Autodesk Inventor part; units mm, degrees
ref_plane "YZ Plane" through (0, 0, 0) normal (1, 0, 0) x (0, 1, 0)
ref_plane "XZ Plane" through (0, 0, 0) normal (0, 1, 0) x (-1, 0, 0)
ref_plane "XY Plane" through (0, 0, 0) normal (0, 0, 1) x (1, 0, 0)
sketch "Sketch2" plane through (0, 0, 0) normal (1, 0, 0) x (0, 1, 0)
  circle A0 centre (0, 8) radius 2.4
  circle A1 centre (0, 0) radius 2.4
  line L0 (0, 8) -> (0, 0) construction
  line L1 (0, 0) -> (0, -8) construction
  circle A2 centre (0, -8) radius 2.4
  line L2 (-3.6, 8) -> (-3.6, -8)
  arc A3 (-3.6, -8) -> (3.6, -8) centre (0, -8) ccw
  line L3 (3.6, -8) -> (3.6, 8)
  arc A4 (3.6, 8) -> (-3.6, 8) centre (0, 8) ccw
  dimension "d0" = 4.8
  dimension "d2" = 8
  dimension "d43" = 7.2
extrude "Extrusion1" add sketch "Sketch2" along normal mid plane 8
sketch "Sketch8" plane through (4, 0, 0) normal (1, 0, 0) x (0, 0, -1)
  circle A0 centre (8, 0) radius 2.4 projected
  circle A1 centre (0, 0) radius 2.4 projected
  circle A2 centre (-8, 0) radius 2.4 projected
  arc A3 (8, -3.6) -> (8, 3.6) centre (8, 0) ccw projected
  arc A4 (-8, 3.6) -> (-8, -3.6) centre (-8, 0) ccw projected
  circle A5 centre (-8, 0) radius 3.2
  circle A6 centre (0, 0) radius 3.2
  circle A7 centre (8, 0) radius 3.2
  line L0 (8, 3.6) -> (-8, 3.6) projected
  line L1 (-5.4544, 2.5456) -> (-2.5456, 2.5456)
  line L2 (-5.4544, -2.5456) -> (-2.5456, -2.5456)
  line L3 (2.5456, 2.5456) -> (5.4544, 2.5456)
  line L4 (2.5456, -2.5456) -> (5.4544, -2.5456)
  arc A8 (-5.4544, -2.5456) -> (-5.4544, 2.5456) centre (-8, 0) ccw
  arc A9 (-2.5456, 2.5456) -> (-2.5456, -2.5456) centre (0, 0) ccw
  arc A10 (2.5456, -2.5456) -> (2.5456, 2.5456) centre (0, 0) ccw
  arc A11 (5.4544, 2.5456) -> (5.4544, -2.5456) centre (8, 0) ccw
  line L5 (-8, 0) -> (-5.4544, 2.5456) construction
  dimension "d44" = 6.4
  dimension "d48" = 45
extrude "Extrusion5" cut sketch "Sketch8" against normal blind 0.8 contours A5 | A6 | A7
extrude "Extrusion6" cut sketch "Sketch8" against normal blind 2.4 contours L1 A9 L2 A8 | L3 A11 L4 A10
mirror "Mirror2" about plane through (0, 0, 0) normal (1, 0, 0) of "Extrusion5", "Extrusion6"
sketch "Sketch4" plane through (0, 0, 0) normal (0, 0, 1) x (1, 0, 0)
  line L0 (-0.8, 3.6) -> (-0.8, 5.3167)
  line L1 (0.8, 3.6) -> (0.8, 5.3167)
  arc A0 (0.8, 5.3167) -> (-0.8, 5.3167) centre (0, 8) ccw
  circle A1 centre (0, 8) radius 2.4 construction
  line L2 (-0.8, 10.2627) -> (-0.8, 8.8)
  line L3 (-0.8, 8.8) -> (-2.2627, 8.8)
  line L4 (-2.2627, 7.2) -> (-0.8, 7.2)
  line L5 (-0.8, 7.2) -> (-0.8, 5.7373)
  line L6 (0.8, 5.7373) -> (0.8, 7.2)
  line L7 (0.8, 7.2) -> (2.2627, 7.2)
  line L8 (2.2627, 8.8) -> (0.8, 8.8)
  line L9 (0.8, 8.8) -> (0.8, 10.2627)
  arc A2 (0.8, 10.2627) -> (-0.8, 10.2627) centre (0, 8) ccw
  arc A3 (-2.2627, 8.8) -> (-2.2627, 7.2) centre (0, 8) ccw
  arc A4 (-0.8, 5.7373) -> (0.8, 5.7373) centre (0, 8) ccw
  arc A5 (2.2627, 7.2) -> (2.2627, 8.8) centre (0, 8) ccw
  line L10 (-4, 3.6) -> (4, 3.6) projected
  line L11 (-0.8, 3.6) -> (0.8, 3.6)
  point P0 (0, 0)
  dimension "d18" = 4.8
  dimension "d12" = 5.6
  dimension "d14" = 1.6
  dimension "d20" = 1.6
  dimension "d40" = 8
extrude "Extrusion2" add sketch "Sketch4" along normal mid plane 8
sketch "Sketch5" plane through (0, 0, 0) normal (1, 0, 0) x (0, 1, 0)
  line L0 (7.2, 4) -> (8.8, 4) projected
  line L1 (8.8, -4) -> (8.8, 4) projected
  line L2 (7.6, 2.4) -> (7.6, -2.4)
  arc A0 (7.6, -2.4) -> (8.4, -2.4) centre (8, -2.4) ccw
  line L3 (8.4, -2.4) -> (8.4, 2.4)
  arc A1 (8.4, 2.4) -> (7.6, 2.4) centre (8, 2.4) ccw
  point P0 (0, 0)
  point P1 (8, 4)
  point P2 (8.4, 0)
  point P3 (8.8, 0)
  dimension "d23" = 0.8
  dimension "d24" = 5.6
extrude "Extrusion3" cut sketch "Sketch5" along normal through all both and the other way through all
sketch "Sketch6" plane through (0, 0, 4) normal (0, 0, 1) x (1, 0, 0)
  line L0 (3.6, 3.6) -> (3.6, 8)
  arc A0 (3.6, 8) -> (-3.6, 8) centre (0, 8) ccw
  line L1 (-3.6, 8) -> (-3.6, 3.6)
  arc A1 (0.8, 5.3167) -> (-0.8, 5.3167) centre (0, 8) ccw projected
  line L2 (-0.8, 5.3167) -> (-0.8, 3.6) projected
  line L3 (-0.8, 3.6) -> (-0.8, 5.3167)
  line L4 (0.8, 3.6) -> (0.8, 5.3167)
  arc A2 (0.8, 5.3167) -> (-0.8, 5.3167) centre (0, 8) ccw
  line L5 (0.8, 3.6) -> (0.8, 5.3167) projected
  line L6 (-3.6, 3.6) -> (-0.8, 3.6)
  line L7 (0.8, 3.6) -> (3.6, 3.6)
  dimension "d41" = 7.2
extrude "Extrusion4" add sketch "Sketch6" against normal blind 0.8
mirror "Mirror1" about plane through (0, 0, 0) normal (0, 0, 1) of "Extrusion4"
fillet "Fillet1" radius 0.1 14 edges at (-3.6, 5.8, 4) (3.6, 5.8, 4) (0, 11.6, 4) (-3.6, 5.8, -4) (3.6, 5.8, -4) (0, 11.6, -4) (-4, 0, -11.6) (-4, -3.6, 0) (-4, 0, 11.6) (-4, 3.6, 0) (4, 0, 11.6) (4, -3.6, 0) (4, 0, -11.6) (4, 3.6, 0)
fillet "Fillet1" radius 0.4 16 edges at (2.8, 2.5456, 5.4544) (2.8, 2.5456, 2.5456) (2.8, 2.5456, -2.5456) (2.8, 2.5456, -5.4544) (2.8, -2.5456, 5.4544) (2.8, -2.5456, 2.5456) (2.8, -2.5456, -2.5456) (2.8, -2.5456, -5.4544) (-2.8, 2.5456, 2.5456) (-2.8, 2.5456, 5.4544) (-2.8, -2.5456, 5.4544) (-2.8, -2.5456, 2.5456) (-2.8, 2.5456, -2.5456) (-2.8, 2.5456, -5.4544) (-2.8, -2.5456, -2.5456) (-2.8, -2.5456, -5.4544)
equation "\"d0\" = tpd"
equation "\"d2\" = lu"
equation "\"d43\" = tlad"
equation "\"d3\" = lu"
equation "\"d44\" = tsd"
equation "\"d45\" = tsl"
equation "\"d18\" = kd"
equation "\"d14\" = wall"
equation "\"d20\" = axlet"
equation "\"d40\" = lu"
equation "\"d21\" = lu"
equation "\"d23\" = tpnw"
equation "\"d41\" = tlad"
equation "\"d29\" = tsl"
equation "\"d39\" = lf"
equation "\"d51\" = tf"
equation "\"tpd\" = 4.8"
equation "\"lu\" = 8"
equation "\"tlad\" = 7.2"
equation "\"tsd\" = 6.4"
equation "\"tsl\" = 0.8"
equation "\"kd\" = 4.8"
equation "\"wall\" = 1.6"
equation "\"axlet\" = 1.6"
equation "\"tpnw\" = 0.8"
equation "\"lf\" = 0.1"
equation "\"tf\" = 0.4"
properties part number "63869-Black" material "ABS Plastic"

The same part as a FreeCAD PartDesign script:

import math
import FreeCAD as App
import Part
import Sketcher
Q = App.Units.Quantity


def edges_at(feature, points):
    """Names of the edges that pass closest to the given points."""
    edges = feature.Shape.Edges
    near = lambda p: min(range(len(edges)), key=lambda i: edges[i].distToShape(Part.Vertex(*p))[0])
    return sorted({f"Edge{near(p) + 1}" for p in points})

doc = App.newDocument("Part")
body = doc.addObject("PartDesign::Body", "Body")

sketch1 = doc.addObject("Sketcher::SketchObject", "Sketch")
body.addObject(sketch1)
sketch1.AttachmentSupport = (doc.YZ_Plane, [""])
sketch1.MapMode = "FlatFace"
sketch1.addGeometry([
    Part.ArcOfCircle(Part.Circle(App.Vector(0, 8, 0), App.Vector(0, 0, 1), 3.6), math.radians(0), math.radians(180)),
    Part.LineSegment(App.Vector(-3.6, 8, 0), App.Vector(-3.6, -8, 0)),
    Part.ArcOfCircle(Part.Circle(App.Vector(0, -8, 0), App.Vector(0, 0, 1), 3.6), math.radians(180), math.radians(360)),
    Part.LineSegment(App.Vector(3.6, -8, 0), App.Vector(3.6, 8, 0)),
    Part.Circle(App.Vector(0, -8, 0), App.Vector(0, 0, 1), 2.4),
    Part.Circle(App.Vector(0, 0, 0), App.Vector(0, 0, 1), 2.4),
    Part.Circle(App.Vector(0, 8, 0), App.Vector(0, 0, 1), 2.4),
], False)
sketch1.addConstraint([
    Sketcher.Constraint("Tangent", 0, 2, 1, 1),
    Sketcher.Constraint("Tangent", 1, 2, 2, 1),
    Sketcher.Constraint("Tangent", 2, 2, 3, 1),
    Sketcher.Constraint("Tangent", 3, 2, 0, 1),
    Sketcher.Constraint("Vertical", 1),
    Sketcher.Constraint("Vertical", 3),
    Sketcher.Constraint("Coincident", 5, 3, -1, 1),
    Sketcher.Constraint("Coincident", 4, 3, 2, 3),
    Sketcher.Constraint("Coincident", 6, 3, 0, 3),
    Sketcher.Constraint("Equal", 4, 5),
    Sketcher.Constraint("Equal", 5, 6),
    Sketcher.Constraint("Symmetric", 0, 3, 2, 3, -1, 1),
    Sketcher.Constraint("Diameter", 4, Q("4.8 mm")),
    Sketcher.Constraint("Radius", 0, Q("3.6 mm")),
    Sketcher.Constraint("DistanceY", -1, 1, 0, 3, Q("8 mm")),
])
pad1 = doc.addObject("PartDesign::Pad", "Pad")
body.addObject(pad1)
pad1.Profile = sketch1
pad1.Length = 8
pad1.Midplane = True

sketch2 = doc.addObject("Sketcher::SketchObject", "Sketch001")
body.addObject(sketch2)
sketch2.AttachmentSupport = (doc.YZ_Plane, [""])
sketch2.MapMode = "FlatFace"
sketch2.AttachmentOffset = App.Placement(App.Vector(0, 0, 4), App.Rotation())
sketch2.addGeometry([
    Part.Circle(App.Vector(0, 8, 0), App.Vector(0, 0, 1), 3.2),
    Part.Circle(App.Vector(0, 8, 0), App.Vector(0, 0, 1), 2.4),
    Part.Circle(App.Vector(0, 0, 0), App.Vector(0, 0, 1), 3.2),
    Part.Circle(App.Vector(0, 0, 0), App.Vector(0, 0, 1), 2.4),
    Part.Circle(App.Vector(0, -8, 0), App.Vector(0, 0, 1), 3.2),
    Part.Circle(App.Vector(0, -8, 0), App.Vector(0, 0, 1), 2.4),
], False)
sketch2.addConstraint([
    Sketcher.Constraint("Coincident", 2, 3, -1, 1),
    Sketcher.Constraint("Coincident", 3, 3, -1, 1),
    Sketcher.Constraint("Coincident", 1, 3, 0, 3),
    Sketcher.Constraint("Coincident", 5, 3, 4, 3),
    Sketcher.Constraint("Equal", 0, 2),
    Sketcher.Constraint("Equal", 1, 3),
    Sketcher.Constraint("Equal", 2, 4),
    Sketcher.Constraint("Equal", 3, 5),
    Sketcher.Constraint("Symmetric", 0, 3, 4, 3, -1, 1),
    Sketcher.Constraint("PointOnObject", 0, 3, -2),
    Sketcher.Constraint("Diameter", 0, Q("6.4 mm")),
    Sketcher.Constraint("Diameter", 1, Q("4.8 mm")),
    Sketcher.Constraint("DistanceY", -1, 1, 0, 3, Q("8 mm")),
])
pocket1 = doc.addObject("PartDesign::Pocket", "Pocket")
body.addObject(pocket1)
pocket1.Profile = sketch2
pocket1.Length = 0.8

sketch3 = doc.addObject("Sketcher::SketchObject", "Sketch002")
body.addObject(sketch3)
sketch3.AttachmentSupport = (doc.YZ_Plane, [""])
sketch3.MapMode = "FlatFace"
sketch3.AttachmentOffset = App.Placement(App.Vector(0, 0, 4), App.Rotation())
sketch3.addGeometry([
    Part.LineSegment(App.Vector(2.5, 2.5, 0), App.Vector(2.5, 5.5, 0)),
    Part.ArcOfCircle(Part.Circle(App.Vector(0, 8, 0), App.Vector(0, 0, 1), 3.6), math.radians(-135), math.radians(-45)),
    Part.LineSegment(App.Vector(-2.5, 5.5, 0), App.Vector(-2.5, 2.5, 0)),
    Part.ArcOfCircle(Part.Circle(App.Vector(0, 0, 0), App.Vector(0, 0, 1), 3.6), math.radians(45), math.radians(135)),
    Part.LineSegment(App.Vector(2.5, -5.5, 0), App.Vector(2.5, -2.5, 0)),
    Part.ArcOfCircle(Part.Circle(App.Vector(0, 0, 0), App.Vector(0, 0, 1), 3.6), math.radians(-135), math.radians(-45)),
    Part.LineSegment(App.Vector(-2.5, -2.5, 0), App.Vector(-2.5, -5.5, 0)),
    Part.ArcOfCircle(Part.Circle(App.Vector(0, -8, 0), App.Vector(0, 0, 1), 3.6), math.radians(45), math.radians(135)),
], False)
sketch3.addConstraint([
    Sketcher.Constraint("Coincident", 0, 2, 1, 2),
    Sketcher.Constraint("Coincident", 1, 1, 2, 1),
    Sketcher.Constraint("Coincident", 2, 2, 3, 2),
    Sketcher.Constraint("Coincident", 3, 1, 0, 1),
    Sketcher.Constraint("Coincident", 4, 2, 5, 2),
    Sketcher.Constraint("Coincident", 5, 1, 6, 1),
    Sketcher.Constraint("Coincident", 6, 2, 7, 2),
    Sketcher.Constraint("Coincident", 7, 1, 4, 1),
    Sketcher.Constraint("Vertical", 0),
    Sketcher.Constraint("Vertical", 2),
    Sketcher.Constraint("Vertical", 4),
    Sketcher.Constraint("Vertical", 6),
    Sketcher.Constraint("Coincident", 3, 3, -1, 1),
    Sketcher.Constraint("Coincident", 5, 3, -1, 1),
    Sketcher.Constraint("Equal", 1, 3),
    Sketcher.Constraint("Equal", 3, 5),
    Sketcher.Constraint("Equal", 5, 7),
    Sketcher.Constraint("Symmetric", 1, 3, 7, 3, -1, 1),
    Sketcher.Constraint("Symmetric", 0, 2, 1, 1, -2),
    Sketcher.Constraint("Horizontal", 4, 2, 5, 1),
    Sketcher.Constraint("Vertical", 3, 1, 4, 2),
    Sketcher.Constraint("Radius", 1, Q("3.6 mm")),
    Sketcher.Constraint("DistanceY", -1, 1, 1, 3, Q("8 mm")),
    Sketcher.Constraint("DistanceY", 0, 1, 0, 2, Q("2.9088 mm")),
])
pocket2 = doc.addObject("PartDesign::Pocket", "Pocket001")
body.addObject(pocket2)
pocket2.Profile = sketch3
pocket2.Length = 2.4
doc.recompute()

mirrored = doc.addObject("PartDesign::Mirrored", "Mirrored")
body.addObject(mirrored)
mirrored.Originals = [pocket1, pocket2]
mirrored.MirrorPlane = (doc.YZ_Plane, [""])
body.Tip = mirrored

sketch4 = doc.addObject("Sketcher::SketchObject", "Sketch003")
body.addObject(sketch4)
sketch4.AttachmentSupport = (doc.XY_Plane, [""])
sketch4.MapMode = "FlatFace"
sketch4.addGeometry([
    Part.LineSegment(App.Vector(-0.8, 5.3, 0), App.Vector(-0.8, 3.6, 0)),
    Part.LineSegment(App.Vector(-0.8, 3.6, 0), App.Vector(0.8, 3.6, 0)),
    Part.LineSegment(App.Vector(0.8, 3.6, 0), App.Vector(0.8, 5.3, 0)),
    Part.ArcOfCircle(Part.Circle(App.Vector(0, 8, 0), App.Vector(0, 0, 1), 2.8), math.radians(-73), math.radians(253)),
    Part.LineSegment(App.Vector(-0.8, 8.8, 0), App.Vector(-0.8, 10.3, 0)),
    Part.ArcOfCircle(Part.Circle(App.Vector(0, 8, 0), App.Vector(0, 0, 1), 2.4), math.radians(71), math.radians(109)),
    Part.LineSegment(App.Vector(0.8, 10.3, 0), App.Vector(0.8, 8.8, 0)),
    Part.LineSegment(App.Vector(0.8, 8.8, 0), App.Vector(2.3, 8.8, 0)),
    Part.ArcOfCircle(Part.Circle(App.Vector(0, 8, 0), App.Vector(0, 0, 1), 2.4), math.radians(-19), math.radians(19)),
    Part.LineSegment(App.Vector(2.3, 7.2, 0), App.Vector(0.8, 7.2, 0)),
    Part.LineSegment(App.Vector(0.8, 7.2, 0), App.Vector(0.8, 5.7, 0)),
    Part.ArcOfCircle(Part.Circle(App.Vector(0, 8, 0), App.Vector(0, 0, 1), 2.4), math.radians(-109), math.radians(-71)),
    Part.LineSegment(App.Vector(-0.8, 5.7, 0), App.Vector(-0.8, 7.2, 0)),
    Part.LineSegment(App.Vector(-0.8, 7.2, 0), App.Vector(-2.3, 7.2, 0)),
    Part.ArcOfCircle(Part.Circle(App.Vector(0, 8, 0), App.Vector(0, 0, 1), 2.4), math.radians(161), math.radians(199)),
    Part.LineSegment(App.Vector(-2.3, 8.8, 0), App.Vector(-0.8, 8.8, 0)),
], False)
sketch4.addConstraint([
    Sketcher.Constraint("Coincident", 0, 2, 1, 1),
    Sketcher.Constraint("Coincident", 1, 2, 2, 1),
    Sketcher.Constraint("Coincident", 2, 2, 3, 1),
    Sketcher.Constraint("Coincident", 3, 2, 0, 1),
    Sketcher.Constraint("Coincident", 4, 2, 5, 2),
    Sketcher.Constraint("Coincident", 5, 1, 6, 1),
    Sketcher.Constraint("Coincident", 6, 2, 7, 1),
    Sketcher.Constraint("Coincident", 7, 2, 8, 2),
    Sketcher.Constraint("Coincident", 8, 1, 9, 1),
    Sketcher.Constraint("Coincident", 9, 2, 10, 1),
    Sketcher.Constraint("Coincident", 10, 2, 11, 2),
    Sketcher.Constraint("Coincident", 11, 1, 12, 1),
    Sketcher.Constraint("Coincident", 12, 2, 13, 1),
    Sketcher.Constraint("Coincident", 13, 2, 14, 2),
    Sketcher.Constraint("Coincident", 14, 1, 15, 1),
    Sketcher.Constraint("Coincident", 15, 2, 4, 1),
    Sketcher.Constraint("Vertical", 0),
    Sketcher.Constraint("Horizontal", 1),
    Sketcher.Constraint("Vertical", 2),
    Sketcher.Constraint("Vertical", 4),
    Sketcher.Constraint("Vertical", 6),
    Sketcher.Constraint("Horizontal", 7),
    Sketcher.Constraint("Horizontal", 9),
    Sketcher.Constraint("Vertical", 10),
    Sketcher.Constraint("Vertical", 12),
    Sketcher.Constraint("Horizontal", 13),
    Sketcher.Constraint("Horizontal", 15),
    Sketcher.Constraint("Coincident", 5, 3, 3, 3),
    Sketcher.Constraint("Coincident", 8, 3, 3, 3),
    Sketcher.Constraint("Coincident", 11, 3, 3, 3),
    Sketcher.Constraint("Coincident", 14, 3, 3, 3),
    Sketcher.Constraint("Equal", 5, 8),
    Sketcher.Constraint("Equal", 8, 11),
    Sketcher.Constraint("Equal", 11, 14),
    Sketcher.Constraint("Symmetric", 2, 2, 3, 2, -2),
    Sketcher.Constraint("Symmetric", 9, 2, 12, 2, -2),
    Sketcher.Constraint("Symmetric", 6, 2, 15, 2, -2),
    Sketcher.Constraint("Vertical", 3, 2, 4, 2),
    Sketcher.Constraint("Vertical", 7, 2, 8, 1),
    Sketcher.Constraint("Vertical", 6, 2, 9, 2),
    Sketcher.Constraint("Equal", 15, 4),
    Sketcher.Constraint("Radius", 3, Q("2.8 mm")),
    Sketcher.Constraint("Radius", 5, Q("2.4 mm")),
    Sketcher.Constraint("DistanceX", 1, 1, 1, 2, Q("1.6 mm")),
    Sketcher.Constraint("DistanceY", -1, 1, 3, 3, Q("8 mm")),
    Sketcher.Constraint("DistanceY", -1, 1, 0, 2, Q("3.6 mm")),
])
pad2 = doc.addObject("PartDesign::Pad", "Pad001")
body.addObject(pad2)
pad2.Profile = sketch4
pad2.Length = 8
pad2.Midplane = True

sketch5 = doc.addObject("Sketcher::SketchObject", "Sketch004")
body.addObject(sketch5)
sketch5.AttachmentSupport = (doc.YZ_Plane, [""])
sketch5.MapMode = "FlatFace"
sketch5.addGeometry([
    Part.ArcOfCircle(Part.Circle(App.Vector(8, 2.4, 0), App.Vector(0, 0, 1), 0.4), math.radians(0), math.radians(180)),
    Part.LineSegment(App.Vector(7.6, 2.4, 0), App.Vector(7.6, -2.4, 0)),
    Part.ArcOfCircle(Part.Circle(App.Vector(8, -2.4, 0), App.Vector(0, 0, 1), 0.4), math.radians(180), math.radians(360)),
    Part.LineSegment(App.Vector(8.4, -2.4, 0), App.Vector(8.4, 2.4, 0)),
], False)
sketch5.addConstraint([
    Sketcher.Constraint("Tangent", 0, 2, 1, 1),
    Sketcher.Constraint("Tangent", 1, 2, 2, 1),
    Sketcher.Constraint("Tangent", 2, 2, 3, 1),
    Sketcher.Constraint("Tangent", 3, 2, 0, 1),
    Sketcher.Constraint("Vertical", 1),
    Sketcher.Constraint("Vertical", 3),
    Sketcher.Constraint("Radius", 0, Q("0.4 mm")),
    Sketcher.Constraint("DistanceY", 1, 2, 1, 1, Q("4.8 mm")),
    Sketcher.Constraint("DistanceX", -1, 1, 0, 3, Q("8 mm")),
    Sketcher.Constraint("DistanceY", -1, 1, 0, 3, Q("2.4 mm")),
])
pocket3 = doc.addObject("PartDesign::Pocket", "Pocket002")
body.addObject(pocket3)
pocket3.Profile = sketch5
pocket3.Type = "ThroughAll"
pocket3.Midplane = True

sketch6 = doc.addObject("Sketcher::SketchObject", "Sketch005")
body.addObject(sketch6)
sketch6.AttachmentSupport = (doc.XY_Plane, [""])
sketch6.MapMode = "FlatFace"
sketch6.AttachmentOffset = App.Placement(App.Vector(0, 0, 4), App.Rotation())
sketch6.addGeometry([
    Part.LineSegment(App.Vector(0.8, 3.6, 0), App.Vector(3.6, 3.6, 0)),
    Part.LineSegment(App.Vector(3.6, 3.6, 0), App.Vector(3.6, 8, 0)),
    Part.ArcOfCircle(Part.Circle(App.Vector(0, 8, 0), App.Vector(0, 0, 1), 3.6), math.radians(0), math.radians(180)),
    Part.LineSegment(App.Vector(-3.6, 8, 0), App.Vector(-3.6, 3.6, 0)),
    Part.LineSegment(App.Vector(-3.6, 3.6, 0), App.Vector(-0.8, 3.6, 0)),
    Part.LineSegment(App.Vector(-0.8, 3.6, 0), App.Vector(-0.8, 5.3, 0)),
    Part.ArcOfCircle(Part.Circle(App.Vector(0, 8, 0), App.Vector(0, 0, 1), 2.8), math.radians(-73), math.radians(253)),
    Part.LineSegment(App.Vector(0.8, 5.3, 0), App.Vector(0.8, 3.6, 0)),
], False)
sketch6.addConstraint([
    Sketcher.Constraint("Coincident", 0, 2, 1, 1),
    Sketcher.Constraint("Tangent", 1, 2, 2, 1),
    Sketcher.Constraint("Tangent", 2, 2, 3, 1),
    Sketcher.Constraint("Coincident", 3, 2, 4, 1),
    Sketcher.Constraint("Coincident", 4, 2, 5, 1),
    Sketcher.Constraint("Coincident", 5, 2, 6, 2),
    Sketcher.Constraint("Coincident", 6, 1, 7, 1),
    Sketcher.Constraint("Coincident", 7, 2, 0, 1),
    Sketcher.Constraint("Horizontal", 0),
    Sketcher.Constraint("Vertical", 1),
    Sketcher.Constraint("Vertical", 3),
    Sketcher.Constraint("Horizontal", 4),
    Sketcher.Constraint("Vertical", 5),
    Sketcher.Constraint("Vertical", 7),
    Sketcher.Constraint("Coincident", 6, 3, 2, 3),
    Sketcher.Constraint("Symmetric", 0, 2, 3, 2, -2),
    Sketcher.Constraint("Horizontal", 5, 2, 6, 1),
    Sketcher.Constraint("Radius", 2, Q("3.6 mm")),
    Sketcher.Constraint("Radius", 6, Q("2.8 mm")),
    Sketcher.Constraint("DistanceX", 0, 1, 0, 2, Q("2.8 mm")),
    Sketcher.Constraint("DistanceY", 1, 1, 1, 2, Q("4.4 mm")),
    Sketcher.Constraint("DistanceY", -1, 1, 2, 3, Q("8 mm")),
])
pad3 = doc.addObject("PartDesign::Pad", "Pad002")
body.addObject(pad3)
pad3.Profile = sketch6
pad3.Length = 0.8
pad3.Reversed = True
doc.recompute()

mirrored2 = doc.addObject("PartDesign::Mirrored", "Mirrored001")
body.addObject(mirrored2)
mirrored2.Originals = [pad3]
mirrored2.MirrorPlane = (doc.XY_Plane, [""])
body.Tip = mirrored2
doc.recompute()

fillet = doc.addObject("PartDesign::Fillet", "Fillet")
body.addObject(fillet)
fillet.Base = (mirrored2, edges_at(mirrored2, [
    (-3.6, 5.8, 4),
    (3.6, 5.8, 4),
    (0, 11.6, 4),
    (-3.6, 5.8, -4),
    (3.6, 5.8, -4),
    (0, 11.6, -4),
    (-4, 0, -11.6),
    (-4, -3.6, 0),
    (-4, 0, 11.6),
    (-4, 3.6, 0),
    (4, 0, 11.6),
    (4, -3.6, 0),
    (4, 0, -11.6),
    (4, 3.6, 0),
]))
fillet.Radius = 0.1
doc.recompute()

fillet2 = doc.addObject("PartDesign::Fillet", "Fillet001")
body.addObject(fillet2)
fillet2.Base = (fillet, edges_at(fillet, [
    (2.8, 2.546, 5.454),
    (2.8, 2.546, 2.546),
    (2.8, 2.546, -2.546),
    (2.8, 2.546, -5.454),
    (2.8, -2.546, 5.454),
    (2.8, -2.546, 2.546),
    (2.8, -2.546, -2.546),
    (2.8, -2.546, -5.454),
    (-2.8, 2.546, 2.546),
    (-2.8, 2.546, 5.454),
    (-2.8, -2.546, 5.454),
    (-2.8, -2.546, 2.546),
    (-2.8, 2.546, -2.546),
    (-2.8, 2.546, -5.454),
    (-2.8, -2.546, -2.546),
    (-2.8, -2.546, -5.454),
]))
fillet2.Radius = 0.4

doc.recompute()
